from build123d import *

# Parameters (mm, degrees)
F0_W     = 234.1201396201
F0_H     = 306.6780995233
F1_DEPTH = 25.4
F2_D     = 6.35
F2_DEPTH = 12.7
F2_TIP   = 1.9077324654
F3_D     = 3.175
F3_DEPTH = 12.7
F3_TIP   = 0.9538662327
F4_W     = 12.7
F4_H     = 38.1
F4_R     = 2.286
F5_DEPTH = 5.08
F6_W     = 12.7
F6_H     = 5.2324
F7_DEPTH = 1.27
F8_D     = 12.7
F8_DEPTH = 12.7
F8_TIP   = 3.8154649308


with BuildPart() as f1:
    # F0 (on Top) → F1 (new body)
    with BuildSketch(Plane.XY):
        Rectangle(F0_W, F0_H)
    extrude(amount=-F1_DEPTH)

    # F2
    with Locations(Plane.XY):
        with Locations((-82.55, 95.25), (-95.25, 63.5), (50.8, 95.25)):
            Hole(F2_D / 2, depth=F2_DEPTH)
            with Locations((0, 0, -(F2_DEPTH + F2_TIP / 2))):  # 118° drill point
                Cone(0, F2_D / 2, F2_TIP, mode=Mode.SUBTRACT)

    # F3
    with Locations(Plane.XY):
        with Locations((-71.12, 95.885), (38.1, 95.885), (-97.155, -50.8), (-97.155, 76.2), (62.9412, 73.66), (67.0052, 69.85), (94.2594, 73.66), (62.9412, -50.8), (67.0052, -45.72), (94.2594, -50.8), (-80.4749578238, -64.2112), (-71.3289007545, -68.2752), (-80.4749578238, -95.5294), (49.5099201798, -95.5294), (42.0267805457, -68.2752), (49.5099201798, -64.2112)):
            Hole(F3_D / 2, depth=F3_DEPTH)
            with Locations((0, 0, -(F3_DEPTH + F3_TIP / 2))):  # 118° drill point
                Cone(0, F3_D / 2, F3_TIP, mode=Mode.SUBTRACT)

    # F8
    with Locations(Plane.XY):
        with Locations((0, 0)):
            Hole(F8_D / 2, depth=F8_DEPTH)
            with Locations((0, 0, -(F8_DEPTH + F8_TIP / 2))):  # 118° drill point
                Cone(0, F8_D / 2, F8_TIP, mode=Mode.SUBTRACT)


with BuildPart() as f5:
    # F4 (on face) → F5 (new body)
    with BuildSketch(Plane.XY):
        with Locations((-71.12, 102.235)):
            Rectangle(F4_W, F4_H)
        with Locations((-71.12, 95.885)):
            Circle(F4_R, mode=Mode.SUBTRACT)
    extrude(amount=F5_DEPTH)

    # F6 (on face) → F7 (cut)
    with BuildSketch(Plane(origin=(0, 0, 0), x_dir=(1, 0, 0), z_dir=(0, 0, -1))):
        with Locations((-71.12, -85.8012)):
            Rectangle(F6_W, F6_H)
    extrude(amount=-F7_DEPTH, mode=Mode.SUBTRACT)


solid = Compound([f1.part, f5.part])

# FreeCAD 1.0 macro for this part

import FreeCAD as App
import Part
import Sketcher
from FreeCAD import Vector
Q = App.Units.Quantity

doc = App.newDocument("Part")
body = doc.addObject("PartDesign::Body", "Body")

# Sketch on XY plane
sketch1 = doc.addObject("Sketcher::SketchObject", "Sketch")
body.addObject(sketch1)
sketch1.AttachmentSupport = (doc.XY_Plane, [""])
sketch1.MapMode = "FlatFace"
sketch1.addGeometry(Part.LineSegment(Vector(-117, 153, 0), Vector(-117, -153, 0)), False)
sketch1.addGeometry(Part.LineSegment(Vector(-117, -153, 0), Vector(117, -153, 0)), False)
sketch1.addGeometry(Part.LineSegment(Vector(117, -153, 0), Vector(117, 153, 0)), False)
sketch1.addGeometry(Part.LineSegment(Vector(117, 153, 0), Vector(-117, 153, 0)), False)
sketch1.addConstraint(Sketcher.Constraint("Coincident", 0, 2, 1, 1))
sketch1.addConstraint(Sketcher.Constraint("Coincident", 1, 2, 2, 1))
sketch1.addConstraint(Sketcher.Constraint("Coincident", 2, 2, 3, 1))
sketch1.addConstraint(Sketcher.Constraint("Coincident", 3, 2, 0, 1))
sketch1.addConstraint(Sketcher.Constraint("Vertical", 0))
sketch1.addConstraint(Sketcher.Constraint("Horizontal", 1))
sketch1.addConstraint(Sketcher.Constraint("Vertical", 2))
sketch1.addConstraint(Sketcher.Constraint("Horizontal", 3))
sketch1.addConstraint(Sketcher.Constraint("Symmetric", 0, 2, 2, 2, -1, 1))
sketch1.addConstraint(Sketcher.Constraint("DistanceY", 0, 2, 0, 1, 306.6781))
sketch1.addConstraint(Sketcher.Constraint("DistanceX", 1, 1, 1, 2, 234.12014))
pad1 = doc.addObject("PartDesign::Pad", "Pad")
body.addObject(pad1)
pad1.Profile = sketch1
pad1.Length = Q("1 in")
pad1.Reversed = True

# Sketch on XY plane
sketch2 = doc.addObject("Sketcher::SketchObject", "Sketch001")
body.addObject(sketch2)
sketch2.AttachmentSupport = (doc.XY_Plane, [""])
sketch2.MapMode = "FlatFace"
sketch2.addGeometry(Part.Circle(Vector(-82.5, 95.2, 0), Vector(0, 0, 1), 3.2), False)
sketch2.addGeometry(Part.Circle(Vector(-95.2, 63.5, 0), Vector(0, 0, 1), 3.2), False)
sketch2.addGeometry(Part.Circle(Vector(50.8, 95.2, 0), Vector(0, 0, 1), 3.2), False)
sketch2.addConstraint(Sketcher.Constraint("Equal", 0, 1))
sketch2.addConstraint(Sketcher.Constraint("Equal", 1, 2))
sketch2.addConstraint(Sketcher.Constraint("Horizontal", 0, 3, 2, 3))
sketch2.addConstraint(Sketcher.Constraint("Diameter", 0, Q("0.25 in")))
sketch2.addConstraint(Sketcher.Constraint("DistanceX", -1, 1, 2, 3, Q("2 in")))
sketch2.addConstraint(Sketcher.Constraint("DistanceY", -1, 1, 1, 3, Q("2.5 in")))
sketch2.addConstraint(Sketcher.Constraint("DistanceX", 1, 3, 0, 3, Q("0.5 in")))
sketch2.addConstraint(Sketcher.Constraint("DistanceX", 0, 3, -1, 1, Q("3.25 in")))
sketch2.addConstraint(Sketcher.Constraint("DistanceY", -1, 1, 0, 3, Q("3.75 in")))
doc.recompute()
hole = doc.addObject("PartDesign::Hole", "Hole")
body.addObject(hole)
hole.Profile = sketch2
hole.ThreadType = "None"
hole.Diameter = Q("0.25 in")
hole.DepthType = "Dimension"
hole.Depth = Q("0.5 in")
hole.DrillPoint = "Angled"
hole.DrillPointAngle = 118

# Sketch on XY plane
sketch3 = doc.addObject("Sketcher::SketchObject", "Sketch002")
body.addObject(sketch3)
sketch3.AttachmentSupport = (doc.XY_Plane, [""])
sketch3.MapMode = "FlatFace"
sketch3.addGeometry(Part.Circle(Vector(-71.1, 95.9, 0), Vector(0, 0, 1), 1.6), False)
sketch3.addGeometry(Part.Circle(Vector(38.1, 95.9, 0), Vector(0, 0, 1), 1.6), False)
sketch3.addGeometry(Part.Circle(Vector(-97.2, -50.8, 0), Vector(0, 0, 1), 1.6), False)
sketch3.addGeometry(Part.Circle(Vector(-97.2, 76.2, 0), Vector(0, 0, 1), 1.6), False)
sketch3.addGeometry(Part.Circle(Vector(62.9, 73.7, 0), Vector(0, 0, 1), 1.6), False)
sketch3.addGeometry(Part.Circle(Vector(67, 69.8, 0), Vector(0, 0, 1), 1.6), False)
sketch3.addGeometry(Part.Circle(Vector(94.3, 73.7, 0), Vector(0, 0, 1), 1.6), False)
sketch3.addGeometry(Part.Circle(Vector(62.9, -50.8, 0), Vector(0, 0, 1), 1.6), False)
sketch3.addGeometry(Part.Circle(Vector(67, -45.7, 0), Vector(0, 0, 1), 1.6), False)
sketch3.addGeometry(Part.Circle(Vector(94.3, -50.8, 0), Vector(0, 0, 1), 1.6), False)
sketch3.addGeometry(Part.Circle(Vector(-80.5, -64.2, 0), Vector(0, 0, 1), 1.6), False)
sketch3.addGeometry(Part.Circle(Vector(-71.3, -68.3, 0), Vector(0, 0, 1), 1.6), False)
sketch3.addGeometry(Part.Circle(Vector(-80.5, -95.5, 0), Vector(0, 0, 1), 1.6), False)
sketch3.addGeometry(Part.Circle(Vector(49.5, -95.5, 0), Vector(0, 0, 1), 1.6), False)
sketch3.addGeometry(Part.Circle(Vector(42, -68.3, 0), Vector(0, 0, 1), 1.6), False)
sketch3.addGeometry(Part.Circle(Vector(49.5, -64.2, 0), Vector(0, 0, 1), 1.6), False)
sketch3.addConstraint(Sketcher.Constraint("Equal", 0, 1))
sketch3.addConstraint(Sketcher.Constraint("Equal", 1, 2))
sketch3.addConstraint(Sketcher.Constraint("Equal", 2, 3))
sketch3.addConstraint(Sketcher.Constraint("Equal", 3, 4))
sketch3.addConstraint(Sketcher.Constraint("Equal", 4, 5))
sketch3.addConstraint(Sketcher.Constraint("Equal", 5, 6))
sketch3.addConstraint(Sketcher.Constraint("Equal", 6, 7))
sketch3.addConstraint(Sketcher.Constraint("Equal", 7, 8))
sketch3.addConstraint(Sketcher.Constraint("Equal", 8, 9))
sketch3.addConstraint(Sketcher.Constraint("Equal", 9, 10))
sketch3.addConstraint(Sketcher.Constraint("Equal", 10, 11))
sketch3.addConstraint(Sketcher.Constraint("Equal", 11, 12))
sketch3.addConstraint(Sketcher.Constraint("Equal", 12, 13))
sketch3.addConstraint(Sketcher.Constraint("Equal", 13, 14))
sketch3.addConstraint(Sketcher.Constraint("Equal", 14, 15))
sketch3.addConstraint(Sketcher.Constraint("Horizontal", 0, 3, 1, 3))
sketch3.addConstraint(Sketcher.Constraint("Horizontal", 4, 3, 6, 3))
sketch3.addConstraint(Sketcher.Constraint("Horizontal", 2, 3, 7, 3))
sketch3.addConstraint(Sketcher.Constraint("Horizontal", 7, 3, 9, 3))
sketch3.addConstraint(Sketcher.Constraint("Horizontal", 12, 3, 13, 3))
sketch3.addConstraint(Sketcher.Constraint("Horizontal", 11, 3, 14, 3))
sketch3.addConstraint(Sketcher.Constraint("Horizontal", 10, 3, 15, 3))
sketch3.addConstraint(Sketcher.Constraint("Vertical", 2, 3, 3, 3))
sketch3.addConstraint(Sketcher.Constraint("Vertical", 4, 3, 7, 3))
sketch3.addConstraint(Sketcher.Constraint("Vertical", 5, 3, 8, 3))
sketch3.addConstraint(Sketcher.Constraint("Vertical", 6, 3, 9, 3))
sketch3.addConstraint(Sketcher.Constraint("Vertical", 10, 3, 12, 3))
sketch3.addConstraint(Sketcher.Constraint("Vertical", 13, 3, 15, 3))
sketch3.addConstraint(Sketcher.Constraint("Diameter", 0, Q("0.125 in")))
sketch3.addConstraint(Sketcher.Constraint("DistanceY", 2, 3, -1, 1, Q("2 in")))
sketch3.addConstraint(Sketcher.Constraint("DistanceY", -1, 1, 3, 3, Q("3 in")))
sketch3.addConstraint(Sketcher.Constraint("DistanceX", 0, 3, -1, 1, Q("2.8 in")))
sketch3.addConstraint(Sketcher.Constraint("DistanceX", -1, 1, 1, 3, Q("1.5 in")))
sketch3.addConstraint(Sketcher.Constraint("DistanceY", -1, 1, 4, 3, Q("2.9 in")))
sketch3.addConstraint(Sketcher.Constraint("DistanceY", 8, 3, -1, 1, Q("1.8 in")))
sketch3.addConstraint(Sketcher.Constraint("DistanceY", -1, 1, 5, 3, Q("2.75 in")))
sketch3.addConstraint(Sketcher.Constraint("DistanceX", 4, 3, 5, 3, Q("0.16 in")))
sketch3.addConstraint(Sketcher.Constraint("DistanceY", 11, 3, 10, 3, Q("0.16 in")))
sketch3.addConstraint(Sketcher.Constraint("DistanceY", -1, 1, 0, 3, Q("3.775 in")))
sketch3.addConstraint(Sketcher.Constraint("DistanceX", 2, 3, -1, 1, Q("3.825 in")))
sketch3.addConstraint(Sketcher.Constraint("DistanceX", -1, 1, 4, 3, Q("2.478 in")))
sketch3.addConstraint(Sketcher.Constraint("DistanceX", -1, 1, 6, 3, Q("3.711 in")))
sketch3.addConstraint(Sketcher.Constraint("DistanceY", 10, 3, -1, 1, Q("2.528 in")))
sketch3.addConstraint(Sketcher.Constraint("DistanceY", 12, 3, -1, 1, Q("3.761 in")))
sketch3.addConstraint(Sketcher.Constraint("DistanceX", 11, 3, -1, 1, 71.328901))
sketch3.addConstraint(Sketcher.Constraint("DistanceX", -1, 1, 13, 3, 49.50992))
sketch3.addConstraint(Sketcher.Constraint("DistanceX", -1, 1, 14, 3, 42.026781))
sketch3.addConstraint(Sketcher.Constraint("DistanceX", 12, 3, 13, 3, 129.984878))
doc.recompute()
hole2 = doc.addObject("PartDesign::Hole", "Hole001")
body.addObject(hole2)
hole2.Profile = sketch3
hole2.ThreadType = "None"
hole2.Diameter = Q("0.125 in")
hole2.DepthType = "Dimension"
hole2.Depth = Q("0.5 in")
hole2.DrillPoint = "Angled"
hole2.DrillPointAngle = 118

# Sketch on XY plane
sketch4 = doc.addObject("Sketcher::SketchObject", "Sketch003")
body.addObject(sketch4)
sketch4.AttachmentSupport = (doc.XY_Plane, [""])
sketch4.MapMode = "FlatFace"
sketch4.addGeometry(Part.Circle(Vector(0, 0, 0), Vector(0, 0, 1), 6), False)
sketch4.addConstraint(Sketcher.Constraint("Coincident", 0, 3, -1, 1))
sketch4.addConstraint(Sketcher.Constraint("Diameter", 0, Q("0.5 in")))
doc.recompute()
hole3 = doc.addObject("PartDesign::Hole", "Hole002")
body.addObject(hole3)
hole3.Profile = sketch4
hole3.ThreadType = "None"
hole3.Diameter = Q("0.5 in")
hole3.DepthType = "Dimension"
hole3.Depth = Q("0.5 in")
hole3.DrillPoint = "Angled"
hole3.DrillPointAngle = 118
body2 = doc.addObject("PartDesign::Body", "Body001")

# Sketch on XY plane
sketch5 = doc.addObject("Sketcher::SketchObject", "Sketch004")
body2.addObject(sketch5)
sketch5.AttachmentSupport = (doc.getObject("XY_Plane001"), [""])
sketch5.MapMode = "FlatFace"
sketch5.addGeometry(Part.LineSegment(Vector(-77.5, 121.3, 0), Vector(-77.5, 83.2, 0)), False)
sketch5.addGeometry(Part.LineSegment(Vector(-77.5, 83.2, 0), Vector(-64.8, 83.2, 0)), False)
sketch5.addGeometry(Part.LineSegment(Vector(-64.8, 83.2, 0), Vector(-64.8, 121.3, 0)), False)
sketch5.addGeometry(Part.LineSegment(Vector(-64.8, 121.3, 0), Vector(-77.5, 121.3, 0)), False)
sketch5.addGeometry(Part.Circle(Vector(-71.1, 95.9, 0), Vector(0, 0, 1), 2.3), False)
sketch5.addConstraint(Sketcher.Constraint("Coincident", 0, 2, 1, 1))
sketch5.addConstraint(Sketcher.Constraint("Coincident", 1, 2, 2, 1))
sketch5.addConstraint(Sketcher.Constraint("Coincident", 2, 2, 3, 1))
sketch5.addConstraint(Sketcher.Constraint("Coincident", 3, 2, 0, 1))
sketch5.addConstraint(Sketcher.Constraint("Vertical", 0))
sketch5.addConstraint(Sketcher.Constraint("Horizontal", 1))
sketch5.addConstraint(Sketcher.Constraint("Vertical", 2))
sketch5.addConstraint(Sketcher.Constraint("Horizontal", 3))
sketch5.addConstraint(Sketcher.Constraint("Diameter", 4, Q("0.18 in")))
sketch5.addConstraint(Sketcher.Constraint("DistanceX", 1, 1, 1, 2, Q("0.5 in")))
sketch5.addConstraint(Sketcher.Constraint("DistanceY", 0, 2, 0, 1, Q("1.5 in")))
sketch5.addConstraint(Sketcher.Constraint("DistanceY", 4, 3, 2, 2, Q("1 in")))
sketch5.addConstraint(Sketcher.Constraint("DistanceX", 4, 3, -1, 1, Q("2.8 in")))
sketch5.addConstraint(Sketcher.Constraint("DistanceX", 0, 2, -1, 1, Q("3.05 in")))
sketch5.addConstraint(Sketcher.Constraint("DistanceY", -1, 1, 4, 3, Q("3.775 in")))
pad2 = doc.addObject("PartDesign::Pad", "Pad001")
body2.addObject(pad2)
pad2.Profile = sketch5
pad2.Length = Q("0.2 in")

# Sketch on XY plane
sketch6 = doc.addObject("Sketcher::SketchObject", "Sketch005")
body2.addObject(sketch6)
sketch6.AttachmentSupport = (doc.getObject("XY_Plane001"), [""])
sketch6.MapMode = "FlatFace"
sketch6.addGeometry(Part.LineSegment(Vector(-77, 83, 0), Vector(-77, 88, 0)), False)
sketch6.addGeometry(Part.LineSegment(Vector(-77, 88, 0), Vector(-65, 88, 0)), False)
sketch6.addGeometry(Part.LineSegment(Vector(-65, 88, 0), Vector(-65, 83, 0)), False)
sketch6.addGeometry(Part.LineSegment(Vector(-65, 83, 0), Vector(-77, 83, 0)), False)
sketch6.addConstraint(Sketcher.Constraint("Coincident", 0, 2, 1, 1))
sketch6.addConstraint(Sketcher.Constraint("Coincident", 1, 2, 2, 1))
sketch6.addConstraint(Sketcher.Constraint("Coincident", 2, 2, 3, 1))
sketch6.addConstraint(Sketcher.Constraint("Coincident", 3, 2, 0, 1))
sketch6.addConstraint(Sketcher.Constraint("Vertical", 0))
sketch6.addConstraint(Sketcher.Constraint("Horizontal", 1))
sketch6.addConstraint(Sketcher.Constraint("Vertical", 2))
sketch6.addConstraint(Sketcher.Constraint("Horizontal", 3))
sketch6.addConstraint(Sketcher.Constraint("DistanceX", 1, 1, 1, 2, Q("0.5 in")))
sketch6.addConstraint(Sketcher.Constraint("DistanceY", 0, 1, 0, 2, Q("0.206 in")))
sketch6.addConstraint(Sketcher.Constraint("DistanceX", 0, 2, -1, 1, Q("3.05 in")))
sketch6.addConstraint(Sketcher.Constraint("DistanceY", -1, 1, 0, 2, Q("3.481 in")))
pocket1 = doc.addObject("PartDesign::Pocket", "Pocket")
body2.addObject(pocket1)
pocket1.Profile = sketch6
pocket1.Length = Q("0.05 in")
pocket1.Reversed = True

doc.recompute()
